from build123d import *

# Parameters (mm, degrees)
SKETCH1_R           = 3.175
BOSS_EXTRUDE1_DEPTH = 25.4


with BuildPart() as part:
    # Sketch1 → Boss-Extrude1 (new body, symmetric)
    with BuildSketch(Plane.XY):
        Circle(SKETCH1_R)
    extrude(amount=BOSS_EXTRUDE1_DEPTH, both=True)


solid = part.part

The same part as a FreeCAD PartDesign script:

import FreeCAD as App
import Part
import Sketcher

V = App.Vector
Q = App.Units.Quantity

doc = App.newDocument("Part")
body = doc.addObject("PartDesign::Body", "Body")

# Sketch on XY plane
sketch1 = body.newObject("Sketcher::SketchObject", "Sketch")
sketch1.AttachmentSupport = (doc.getObject("XY_Plane"), [""])
sketch1.MapMode = "FlatFace"
sketch1.addGeometry(Part.Circle(V(0, 0, 0), V(0, 0, 1), 3.2), False)
sketch1.addConstraint([
    Sketcher.Constraint("Coincident", 0, 3, -1, 1),
    Sketcher.Constraint("Diameter", 0, Q("0.25 in")),
])
pad1 = body.newObject("PartDesign::Pad", "Pad")
pad1.Profile = sketch1
pad1.Length = Q("2 in")
pad1.Midplane = True

doc.recompute()
